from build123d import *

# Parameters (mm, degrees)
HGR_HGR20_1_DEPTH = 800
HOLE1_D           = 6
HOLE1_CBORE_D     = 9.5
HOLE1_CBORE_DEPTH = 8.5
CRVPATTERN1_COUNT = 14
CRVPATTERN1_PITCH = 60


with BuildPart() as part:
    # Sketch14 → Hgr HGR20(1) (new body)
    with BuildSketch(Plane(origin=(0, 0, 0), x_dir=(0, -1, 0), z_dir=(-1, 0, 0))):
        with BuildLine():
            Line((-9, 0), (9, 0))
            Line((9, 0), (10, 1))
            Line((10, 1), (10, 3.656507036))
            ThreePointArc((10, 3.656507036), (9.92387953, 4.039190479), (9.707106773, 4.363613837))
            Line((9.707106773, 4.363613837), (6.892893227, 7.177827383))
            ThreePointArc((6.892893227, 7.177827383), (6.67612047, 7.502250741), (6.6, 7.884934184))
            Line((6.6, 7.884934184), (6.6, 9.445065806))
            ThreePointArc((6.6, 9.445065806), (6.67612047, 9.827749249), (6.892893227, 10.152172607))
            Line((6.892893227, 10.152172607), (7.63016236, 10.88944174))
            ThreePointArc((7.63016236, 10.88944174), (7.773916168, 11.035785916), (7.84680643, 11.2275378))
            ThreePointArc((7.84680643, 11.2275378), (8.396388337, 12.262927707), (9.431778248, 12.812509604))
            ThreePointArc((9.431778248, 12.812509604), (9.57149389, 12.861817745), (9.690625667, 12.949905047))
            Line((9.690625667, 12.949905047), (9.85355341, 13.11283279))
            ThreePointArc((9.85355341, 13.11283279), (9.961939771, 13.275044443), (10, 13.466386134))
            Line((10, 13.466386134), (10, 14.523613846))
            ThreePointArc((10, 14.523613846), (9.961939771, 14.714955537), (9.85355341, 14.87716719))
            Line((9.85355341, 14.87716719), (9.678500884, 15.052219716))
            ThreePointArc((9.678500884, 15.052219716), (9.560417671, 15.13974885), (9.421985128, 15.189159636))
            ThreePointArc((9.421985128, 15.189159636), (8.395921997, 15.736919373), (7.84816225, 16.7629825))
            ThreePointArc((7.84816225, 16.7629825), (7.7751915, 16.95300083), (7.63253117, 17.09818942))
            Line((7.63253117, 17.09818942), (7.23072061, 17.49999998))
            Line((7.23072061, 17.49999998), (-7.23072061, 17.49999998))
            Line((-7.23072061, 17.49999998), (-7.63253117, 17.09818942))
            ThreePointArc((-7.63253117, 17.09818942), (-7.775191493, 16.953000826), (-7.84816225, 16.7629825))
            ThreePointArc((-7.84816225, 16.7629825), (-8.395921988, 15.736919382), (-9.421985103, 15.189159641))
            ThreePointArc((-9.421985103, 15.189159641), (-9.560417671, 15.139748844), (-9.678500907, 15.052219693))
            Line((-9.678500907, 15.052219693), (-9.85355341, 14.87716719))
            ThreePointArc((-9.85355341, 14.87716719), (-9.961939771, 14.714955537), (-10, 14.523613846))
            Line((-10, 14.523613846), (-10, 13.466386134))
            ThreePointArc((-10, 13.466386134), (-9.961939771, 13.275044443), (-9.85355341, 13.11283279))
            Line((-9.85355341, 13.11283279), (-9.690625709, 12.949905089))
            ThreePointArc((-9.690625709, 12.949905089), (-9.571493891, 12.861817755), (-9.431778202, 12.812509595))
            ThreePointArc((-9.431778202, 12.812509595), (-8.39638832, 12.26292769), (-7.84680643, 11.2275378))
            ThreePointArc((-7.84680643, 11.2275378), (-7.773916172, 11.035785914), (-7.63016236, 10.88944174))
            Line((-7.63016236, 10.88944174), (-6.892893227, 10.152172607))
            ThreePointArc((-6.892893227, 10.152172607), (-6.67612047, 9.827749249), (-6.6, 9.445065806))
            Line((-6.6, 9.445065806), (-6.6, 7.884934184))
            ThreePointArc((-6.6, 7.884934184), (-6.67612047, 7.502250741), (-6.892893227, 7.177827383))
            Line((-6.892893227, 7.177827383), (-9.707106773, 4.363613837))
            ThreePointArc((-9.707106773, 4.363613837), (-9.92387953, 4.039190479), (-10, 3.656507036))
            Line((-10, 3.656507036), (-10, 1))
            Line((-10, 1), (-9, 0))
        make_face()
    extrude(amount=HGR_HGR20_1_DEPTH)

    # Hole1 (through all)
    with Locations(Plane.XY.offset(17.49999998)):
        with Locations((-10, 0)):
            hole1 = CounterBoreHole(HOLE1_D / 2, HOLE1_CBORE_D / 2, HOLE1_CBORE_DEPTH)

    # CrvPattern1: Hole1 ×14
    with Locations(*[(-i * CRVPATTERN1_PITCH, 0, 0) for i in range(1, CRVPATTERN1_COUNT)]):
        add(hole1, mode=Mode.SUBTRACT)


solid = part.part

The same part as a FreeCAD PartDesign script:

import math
import FreeCAD as App
import Part
import Sketcher
Q = App.Units.Quantity

doc = App.newDocument("Part")
params = doc.addObject("Spreadsheet::Sheet", "Params")
for row, (alias, value) in enumerate([
    ("sketch1_radius", "1 mm"),
    ("sketch1_radius2", "1 mm"),
    ("sketch1_radius3", "1 mm"),
    ("sketch1_radius4", "2 mm"),
    ("sketch1_radius5", "2 mm"),
    ("pad1_length", "800 mm"),
    ("sketch2_diameter", "6 mm"),
    ("hole_diameter", "6 mm"),
    ("hole_cbore_diameter", "9.5 mm"),
    ("hole_cbore_depth", "8.5 mm"),
    ("linearpattern_pitch", "60 mm"),
], start=1):
    params.set(f"A{row}", alias)
    params.set(f"B{row}", "=" + value)
    params.setAlias(f"B{row}", alias)

body = doc.addObject("PartDesign::Body", "Body")

sketch1 = body.newObject("Sketcher::SketchObject", "Sketch")
sketch1.AttachmentSupport = (doc.getObject("YZ_Plane"), [""])
sketch1.MapMode = "FlatFace"
sketch1.addGeometry([
    Part.LineSegment(App.Vector(9, 0, 0), App.Vector(-9, 0, 0)),
    Part.LineSegment(App.Vector(-9, 0, 0), App.Vector(-10, 1, 0)),
    Part.LineSegment(App.Vector(-10, 1, 0), App.Vector(-10, 3.656507, 0)),
    Part.ArcOfCircle(Part.Circle(App.Vector(-9, 3.656507, 0), App.Vector(0, 0, 1), 1), math.radians(135), math.radians(180)),
    Part.LineSegment(App.Vector(-9.707107, 4.363614, 0), App.Vector(-6.892893, 7.177827, 0)),
    Part.ArcOfCircle(Part.Circle(App.Vector(-7.6, 7.884934, 0), App.Vector(0, 0, 1), 1), math.radians(-45), math.radians(0)),
    Part.LineSegment(App.Vector(-6.6, 7.884934, 0), App.Vector(-6.6, 9.445066, 0)),
    Part.ArcOfCircle(Part.Circle(App.Vector(-7.6, 9.445066, 0), App.Vector(0, 0, 1), 1), math.radians(0), math.radians(45)),
    Part.LineSegment(App.Vector(-6.892893, 10.152173, 0), App.Vector(-7.630162, 10.889442, 0)),
    Part.ArcOfCircle(Part.Circle(App.Vector(-7.352929, 11.305545, 0), App.Vector(0, 0, 1), 0.5), math.radians(-171.024402), math.radians(-123.673995)),
    Part.ArcOfCircle(Part.Circle(App.Vector(-9.810602, 10.848714, 0), App.Vector(0, 0, 1), 2), math.radians(10.918461), math.radians(79.081539)),
    Part.ArcOfCircle(Part.Circle(App.Vector(-9.337072, 13.303458, 0), App.Vector(0, 0, 1), 0.5), math.radians(-135), math.radians(-100.91846)),
    Part.LineSegment(App.Vector(-9.690626, 12.949905, 0), App.Vector(-9.853553, 13.112833, 0)),
    Part.ArcOfCircle(Part.Circle(App.Vector(-9.5, 13.466386, 0), App.Vector(0, 0, 1), 0.5), math.radians(-180), math.radians(-135)),
    Part.LineSegment(App.Vector(-10, 13.466386, 0), App.Vector(-10, 14.523614, 0)),
    Part.ArcOfCircle(Part.Circle(App.Vector(-9.5, 14.523614, 0), App.Vector(0, 0, 1), 0.5), math.radians(135), math.radians(180)),
    Part.LineSegment(App.Vector(-9.853553, 14.877167, 0), App.Vector(-9.678501, 15.05222, 0)),
    Part.ArcOfCircle(Part.Circle(App.Vector(-9.324948, 14.698666, 0), App.Vector(0, 0, 1), 0.5), math.radians(101.190705), math.radians(135)),
    Part.ArcOfCircle(Part.Circle(App.Vector(-9.810136, 17.151133, 0), App.Vector(0, 0, 1), 2), math.radians(-78.809295), math.radians(-11.190706)),
    Part.ArcOfCircle(Part.Circle(App.Vector(-7.354683, 16.682497, 0), App.Vector(0, 0, 1), 0.5), math.radians(123.758731), math.radians(170.736737)),
    Part.LineSegment(App.Vector(-7.632531, 17.098189, 0), App.Vector(-7.230721, 17.5, 0)),
    Part.LineSegment(App.Vector(-7.230721, 17.5, 0), App.Vector(7.230721, 17.5, 0)),
    Part.LineSegment(App.Vector(7.230721, 17.5, 0), App.Vector(7.632531, 17.098189, 0)),
    Part.ArcOfCircle(Part.Circle(App.Vector(7.354683, 16.682497, 0), App.Vector(0, 0, 1), 0.5), math.radians(9.263268), math.radians(56.241265)),
    Part.ArcOfCircle(Part.Circle(App.Vector(9.810136, 17.151133, 0), App.Vector(0, 0, 1), 2), math.radians(-168.809294), math.radians(-101.190706)),
    Part.ArcOfCircle(Part.Circle(App.Vector(9.324947, 14.698666, 0), App.Vector(0, 0, 1), 0.5), math.radians(45), math.radians(78.809294)),
    Part.LineSegment(App.Vector(9.678501, 15.05222, 0), App.Vector(9.853553, 14.877167, 0)),
    Part.ArcOfCircle(Part.Circle(App.Vector(9.5, 14.523614, 0), App.Vector(0, 0, 1), 0.5), math.radians(0), math.radians(45)),
    Part.LineSegment(App.Vector(10, 14.523614, 0), App.Vector(10, 13.466386, 0)),
    Part.ArcOfCircle(Part.Circle(App.Vector(9.5, 13.466386, 0), App.Vector(0, 0, 1), 0.5), math.radians(-45), math.radians(0)),
    Part.LineSegment(App.Vector(9.853553, 13.112833, 0), App.Vector(9.690626, 12.949905, 0)),
    Part.ArcOfCircle(Part.Circle(App.Vector(9.337072, 13.303459, 0), App.Vector(0, 0, 1), 0.5), math.radians(-79.081539), math.radians(-45)),
    Part.ArcOfCircle(Part.Circle(App.Vector(9.810602, 10.848714, 0), App.Vector(0, 0, 1), 2), math.radians(100.918462), math.radians(169.081539)),
    Part.ArcOfCircle(Part.Circle(App.Vector(7.352929, 11.305545, 0), App.Vector(0, 0, 1), 0.5), math.radians(-56.326007), math.radians(-8.975596)),
    Part.LineSegment(App.Vector(7.630162, 10.889442, 0), App.Vector(6.892893, 10.152173, 0)),
    Part.ArcOfCircle(Part.Circle(App.Vector(7.6, 9.445066, 0), App.Vector(0, 0, 1), 1), math.radians(135), math.radians(180)),
    Part.LineSegment(App.Vector(6.6, 9.445066, 0), App.Vector(6.6, 7.884934, 0)),
    Part.ArcOfCircle(Part.Circle(App.Vector(7.6, 7.884934, 0), App.Vector(0, 0, 1), 1), math.radians(-180), math.radians(-135)),
    Part.LineSegment(App.Vector(6.892893, 7.177827, 0), App.Vector(9.707107, 4.363614, 0)),
    Part.ArcOfCircle(Part.Circle(App.Vector(9, 3.656507, 0), App.Vector(0, 0, 1), 1), math.radians(0), math.radians(45)),
    Part.LineSegment(App.Vector(10, 3.656507, 0), App.Vector(10, 1, 0)),
    Part.LineSegment(App.Vector(10, 1, 0), App.Vector(9, 0, 0)),
], False)
sketch1.addConstraint([
    Sketcher.Constraint("Coincident", 0, 2, 1, 1),
    Sketcher.Constraint("Coincident", 1, 2, 2, 1),
    Sketcher.Constraint("Coincident", 2, 2, 3, 2),
    Sketcher.Constraint("Coincident", 3, 1, 4, 1),
    Sketcher.Constraint("Coincident", 4, 2, 5, 1),
    Sketcher.Constraint("Coincident", 5, 2, 6, 1),
    Sketcher.Constraint("Coincident", 6, 2, 7, 1),
    Sketcher.Constraint("Coincident", 7, 2, 8, 1),
    Sketcher.Constraint("Coincident", 8, 2, 9, 2),
    Sketcher.Constraint("Coincident", 9, 1, 10, 1),
    Sketcher.Constraint("Coincident", 10, 2, 11, 2),
    Sketcher.Constraint("Coincident", 11, 1, 12, 1),
    Sketcher.Constraint("Coincident", 12, 2, 13, 2),
    Sketcher.Constraint("Coincident", 13, 1, 14, 1),
    Sketcher.Constraint("Coincident", 14, 2, 15, 2),
    Sketcher.Constraint("Coincident", 15, 1, 16, 1),
    Sketcher.Constraint("Coincident", 16, 2, 17, 2),
    Sketcher.Constraint("Coincident", 17, 1, 18, 1),
    Sketcher.Constraint("Coincident", 18, 2, 19, 2),
    Sketcher.Constraint("Coincident", 19, 1, 20, 1),
    Sketcher.Constraint("Coincident", 20, 2, 21, 1),
    Sketcher.Constraint("Coincident", 21, 2, 22, 1),
    Sketcher.Constraint("Coincident", 22, 2, 23, 2),
    Sketcher.Constraint("Coincident", 23, 1, 24, 1),
    Sketcher.Constraint("Coincident", 24, 2, 25, 2),
    Sketcher.Constraint("Coincident", 25, 1, 26, 1),
    Sketcher.Constraint("Coincident", 26, 2, 27, 2),
    Sketcher.Constraint("Coincident", 27, 1, 28, 1),
    Sketcher.Constraint("Coincident", 28, 2, 29, 2),
    Sketcher.Constraint("Coincident", 29, 1, 30, 1),
    Sketcher.Constraint("Coincident", 30, 2, 31, 2),
    Sketcher.Constraint("Coincident", 31, 1, 32, 1),
    Sketcher.Constraint("Coincident", 32, 2, 33, 2),
    Sketcher.Constraint("Coincident", 33, 1, 34, 1),
    Sketcher.Constraint("Coincident", 34, 2, 35, 1),
    Sketcher.Constraint("Coincident", 35, 2, 36, 1),
    Sketcher.Constraint("Coincident", 36, 2, 37, 1),
    Sketcher.Constraint("Coincident", 37, 2, 38, 1),
    Sketcher.Constraint("Coincident", 38, 2, 39, 2),
    Sketcher.Constraint("Coincident", 39, 1, 40, 1),
    Sketcher.Constraint("Coincident", 40, 2, 41, 1),
    Sketcher.Constraint("Coincident", 41, 2, 0, 1),
    Sketcher.Constraint("Horizontal", 0),
    Sketcher.Constraint("Vertical", 2),
    Sketcher.Constraint("Vertical", 6),
    Sketcher.Constraint("Vertical", 14),
    Sketcher.Constraint("Horizontal", 21),
    Sketcher.Constraint("Vertical", 28),
    Sketcher.Constraint("Vertical", 36),
    Sketcher.Constraint("Vertical", 40),
    Sketcher.Constraint("PointOnObject", 0, 2, -1),
    Sketcher.Constraint("Radius", 3, Q("1 mm")),
    Sketcher.Constraint("Radius", 5, Q("1 mm")),
    Sketcher.Constraint("Radius", 7, Q("1 mm")),
    Sketcher.Constraint("Radius", 10, Q("2 mm")),
    Sketcher.Constraint("Radius", 18, Q("2 mm")),
    Sketcher.Constraint("Radius", 24, Q("2 mm")),
    Sketcher.Constraint("Radius", 32, Q("2 mm")),
    Sketcher.Constraint("Radius", 35, Q("1 mm")),
    Sketcher.Constraint("Radius", 37, Q("1 mm")),
    Sketcher.Constraint("Radius", 39, Q("1 mm")),
    Sketcher.Constraint("Radius", 9, Q("0.5 mm")),
    Sketcher.Constraint("Radius", 11, Q("0.5 mm")),
    Sketcher.Constraint("Radius", 13, Q("0.5 mm")),
    Sketcher.Constraint("Radius", 15, Q("0.5 mm")),
    Sketcher.Constraint("Radius", 17, Q("0.5 mm")),
    Sketcher.Constraint("Radius", 19, Q("0.5 mm")),
    Sketcher.Constraint("Radius", 23, Q("0.5 mm")),
    Sketcher.Constraint("Radius", 25, Q("0.5 mm")),
    Sketcher.Constraint("Radius", 27, Q("0.5 mm")),
    Sketcher.Constraint("Radius", 29, Q("0.5 mm")),
    Sketcher.Constraint("Radius", 31, Q("0.5 mm")),
    Sketcher.Constraint("Radius", 33, Q("0.5 mm")),
    Sketcher.Constraint("DistanceX", 0, 2, 0, 1, Q("18 mm")),
    Sketcher.Constraint("DistanceX", 3, 3, -1, 1, Q("9 mm")),
    Sketcher.Constraint("DistanceX", -1, 1, 39, 3, Q("9 mm")),
    Sketcher.Constraint("DistanceX", 0, 2, -1, 1, Q("9 mm")),
    Sketcher.Constraint("DistanceY", -1, 1, 1, 2, Q("1 mm")),
    Sketcher.Constraint("DistanceX", 13, 1, -1, 1, Q("10 mm")),
    Sketcher.Constraint("DistanceX", -1, 1, 27, 1, Q("10 mm")),
    Sketcher.Constraint("DistanceY", -1, 1, 40, 2, Q("1 mm")),
    Sketcher.Constraint("DistanceX", 5, 3, -1, 1, Q("7.6 mm")),
    Sketcher.Constraint("DistanceX", -1, 1, 35, 3, Q("7.6 mm")),
    Sketcher.Constraint("DistanceY", -1, 1, 20, 2, Q("17.5 mm")),
    Sketcher.Constraint("Distance", 4, Q("3.979899 mm")),
    Sketcher.Constraint("Distance", 38, Q("3.979899 mm")),
    Sketcher.Constraint("DistanceX", 21, 1, 21, 2, Q("14.461441 mm")),
    Sketcher.Constraint("DistanceY", 6, 1, 6, 2, Q("1.560132 mm")),
    Sketcher.Constraint("DistanceY", 36, 2, 36, 1, Q("1.560132 mm")),
    Sketcher.Constraint("DistanceX", 10, 3, -1, 1, Q("9.810602 mm")),
    Sketcher.Constraint("DistanceX", -1, 1, 32, 3, Q("9.810602 mm")),
    Sketcher.Constraint("DistanceX", 16, 2, -1, 1, Q("9.678501 mm")),
    Sketcher.Constraint("DistanceX", -1, 1, 25, 1, Q("9.678501 mm")),
    Sketcher.Constraint("Distance", 16, Q("0.247562 mm")),
    Sketcher.Constraint("Distance", 26, Q("0.247562 mm")),
    Sketcher.Constraint("DistanceY", 2, 1, 2, 2, Q("2.656507 mm")),
    Sketcher.Constraint("DistanceY", 14, 1, 14, 2, Q("1.057228 mm")),
    Sketcher.Constraint("DistanceY", 28, 2, 28, 1, Q("1.057228 mm")),
    Sketcher.Constraint("DistanceY", 40, 2, 40, 1, Q("2.656507 mm")),
    Sketcher.Constraint("DistanceX", 9, 3, -1, 1, Q("7.352929 mm")),
    Sketcher.Constraint("DistanceY", -1, 1, 11, 3, Q("13.303458 mm")),
    Sketcher.Constraint("DistanceY", -1, 1, 31, 3, Q("13.303459 mm")),
    Sketcher.Constraint("DistanceX", -1, 1, 33, 3, Q("7.352929 mm")),
    Sketcher.Constraint("DistanceY", -1, 1, 8, 2, Q("10.889442 mm")),
    Sketcher.Constraint("DistanceX", 10, 2, -1, 1, Q("9.431778 mm")),
    Sketcher.Constraint("DistanceY", -1, 1, 10, 2, Q("12.81251 mm")),
    Sketcher.Constraint("DistanceY", -1, 1, 16, 2, Q("15.05222 mm")),
    Sketcher.Constraint("DistanceY", -1, 1, 17, 1, Q("15.18916 mm")),
    Sketcher.Constraint("DistanceX", 19, 1, -1, 1, Q("7.632531 mm")),
    Sketcher.Constraint("DistanceY", -1, 1, 19, 1, Q("17.098189 mm")),
    Sketcher.Constraint("DistanceX", 20, 2, -1, 1, Q("7.230721 mm")),
    Sketcher.Constraint("DistanceX", -1, 1, 22, 2, Q("7.632531 mm")),
    Sketcher.Constraint("DistanceY", -1, 1, 22, 2, Q("17.098189 mm")),
    Sketcher.Constraint("DistanceY", -1, 1, 24, 2, Q("15.18916 mm")),
    Sketcher.Constraint("DistanceY", -1, 1, 25, 1, Q("15.05222 mm")),
    Sketcher.Constraint("DistanceX", -1, 1, 31, 1, Q("9.431778 mm")),
    Sketcher.Constraint("DistanceY", -1, 1, 31, 1, Q("12.81251 mm")),
    Sketcher.Constraint("DistanceY", -1, 1, 33, 1, Q("10.889442 mm")),
    Sketcher.Constraint("Distance", 8, Q("1.042656 mm")),
    Sketcher.Constraint("Distance", 12, Q("0.230415 mm")),
    Sketcher.Constraint("Distance", 30, Q("0.230415 mm")),
    Sketcher.Constraint("Distance", 34, Q("1.042656 mm")),
    Sketcher.Constraint("DistanceY", -1, 1, 3, 3, Q("3.656507 mm")),
    Sketcher.Constraint("DistanceY", -1, 1, 5, 3, Q("7.884934 mm")),
    Sketcher.Constraint("DistanceY", -1, 1, 7, 3, Q("9.445066 mm")),
    Sketcher.Constraint("DistanceY", -1, 1, 9, 3, Q("11.305545 mm")),
    Sketcher.Constraint("DistanceY", -1, 1, 13, 3, Q("13.466386 mm")),
    Sketcher.Constraint("DistanceY", -1, 1, 15, 3, Q("14.523614 mm")),
    Sketcher.Constraint("DistanceX", 17, 3, -1, 1, Q("9.324948 mm")),
    Sketcher.Constraint("DistanceX", 18, 3, -1, 1, Q("9.810136 mm")),
    Sketcher.Constraint("DistanceX", 19, 3, -1, 1, Q("7.354683 mm")),
    Sketcher.Constraint("DistanceX", -1, 1, 23, 3, Q("7.354683 mm")),
    Sketcher.Constraint("DistanceX", -1, 1, 24, 3, Q("9.810136 mm")),
    Sketcher.Constraint("DistanceY", -1, 1, 24, 3, Q("17.151133 mm")),
    Sketcher.Constraint("DistanceY", -1, 1, 27, 3, Q("14.523614 mm")),
    Sketcher.Constraint("DistanceY", -1, 1, 29, 3, Q("13.466386 mm")),
    Sketcher.Constraint("DistanceY", -1, 1, 33, 3, Q("11.305545 mm")),
    Sketcher.Constraint("DistanceY", -1, 1, 35, 3, Q("9.445066 mm")),
    Sketcher.Constraint("DistanceY", -1, 1, 37, 3, Q("7.884934 mm")),
    Sketcher.Constraint("DistanceY", -1, 1, 39, 3, Q("3.656507 mm")),
    Sketcher.Constraint("DistanceX", 3, 1, -1, 1, Q("9.707107 mm")),
    Sketcher.Constraint("DistanceY", -1, 1, 5, 2, Q("7.884934 mm")),
    Sketcher.Constraint("DistanceX", 11, 1, -1, 1, Q("9.690626 mm")),
    Sketcher.Constraint("DistanceY", -1, 1, 13, 1, Q("13.466386 mm")),
    Sketcher.Constraint("DistanceY", -1, 1, 27, 1, Q("14.523614 mm")),
    Sketcher.Constraint("DistanceX", -1, 1, 29, 1, Q("9.853553 mm")),
    Sketcher.Constraint("DistanceY", -1, 1, 35, 2, Q("9.445066 mm")),
    Sketcher.Constraint("DistanceX", -1, 1, 37, 2, Q("6.892893 mm")),
])
sketch1.setExpression("Constraints[51]", "Params.sketch1_radius")
sketch1.setExpression("Constraints[52]", "Params.sketch1_radius2")
sketch1.setExpression("Constraints[53]", "Params.sketch1_radius3")
sketch1.setExpression("Constraints[54]", "Params.sketch1_radius4")
sketch1.setExpression("Constraints[55]", "Params.sketch1_radius5")
pad1 = body.newObject("PartDesign::Pad", "Pad")
pad1.Profile = sketch1
pad1.setExpression("Length", "Params.pad1_length")
pad1.Reversed = True

sketch2 = body.newObject("Sketcher::SketchObject", "Sketch001")
sketch2.AttachmentSupport = (doc.getObject("XY_Plane"), [""])
sketch2.MapMode = "FlatFace"
sketch2.AttachmentOffset = App.Placement(App.Vector(0, 0, 17.5), App.Rotation())
sketch2.addGeometry(Part.Circle(App.Vector(-10, 0, 0), App.Vector(0, 0, 1), 3), False)
sketch2.addConstraint([
    Sketcher.Constraint("PointOnObject", 0, 3, -1),
    Sketcher.Constraint("Diameter", 0, Q("6 mm")),
    Sketcher.Constraint("DistanceX", 0, 3, -1, 1, Q("10 mm")),
])
sketch2.setExpression("Constraints[1]", "Params.sketch2_diameter")
doc.recompute()
hole = body.newObject("PartDesign::Hole", "Hole")
hole.Profile = sketch2
hole.ThreadType = "None"
hole.setExpression("Diameter", "Params.hole_diameter")
hole.DepthType = "ThroughAll"
hole.HoleCutType = "Counterbore"
hole.setExpression("HoleCutDiameter", "Params.hole_cbore_diameter")
hole.setExpression("HoleCutDepth", "Params.hole_cbore_depth")
doc.recompute()

linearpattern = body.newObject("PartDesign::LinearPattern", "LinearPattern")
linearpattern.Originals = [hole]
linearpattern.Direction = (doc.getObject("X_Axis"), [""])
linearpattern.Mode = "offset"
linearpattern.setExpression("Offset", "Params.linearpattern_pitch")
linearpattern.Occurrences = 14
linearpattern.Reversed = True
body.Tip = linearpattern

doc.recompute()
